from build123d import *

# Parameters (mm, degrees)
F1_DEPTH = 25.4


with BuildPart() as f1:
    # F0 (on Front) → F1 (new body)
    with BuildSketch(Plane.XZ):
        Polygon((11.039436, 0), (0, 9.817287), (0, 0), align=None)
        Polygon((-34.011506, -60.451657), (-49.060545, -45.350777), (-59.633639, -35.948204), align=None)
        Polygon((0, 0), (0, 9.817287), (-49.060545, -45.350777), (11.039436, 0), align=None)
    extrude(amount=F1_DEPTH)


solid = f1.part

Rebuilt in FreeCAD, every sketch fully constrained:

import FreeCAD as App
import Part
import Sketcher

V = App.Vector
Q = App.Units.Quantity

doc = App.newDocument("Part")
body = doc.addObject("PartDesign::Body", "Body")
body.AllowCompound = True

# Sketch on XZ plane
sketch1 = body.newObject("Sketcher::SketchObject", "Sketch")
sketch1.AttachmentSupport = (doc.getObject("XZ_Plane"), [""])
sketch1.MapMode = "FlatFace"
sketch1.addGeometry(Part.LineSegment(V(11, 0, 0), V(0, 10, 0)), False)
sketch1.addGeometry(Part.LineSegment(V(0, 10, 0), V(-49, -45, 0)), False)
sketch1.addGeometry(Part.LineSegment(V(-49, -45, 0), V(11, 0, 0)), False)
sketch1.addGeometry(Part.LineSegment(V(-34, -60, 0), V(-49, -45, 0)), False)
sketch1.addGeometry(Part.LineSegment(V(-49, -45, 0), V(-60, -36, 0)), False)
sketch1.addGeometry(Part.LineSegment(V(-60, -36, 0), V(-34, -60, 0)), False)
sketch1.addConstraint(Sketcher.Constraint("Coincident", 0, 2, 1, 1))
sketch1.addConstraint(Sketcher.Constraint("Coincident", 1, 2, 2, 1))
sketch1.addConstraint(Sketcher.Constraint("Coincident", 2, 2, 0, 1))
sketch1.addConstraint(Sketcher.Constraint("Coincident", 3, 2, 4, 1))
sketch1.addConstraint(Sketcher.Constraint("Coincident", 4, 2, 5, 1))
sketch1.addConstraint(Sketcher.Constraint("Coincident", 5, 2, 3, 1))
sketch1.addConstraint(Sketcher.Constraint("Coincident", 3, 2, 1, 2))
sketch1.addConstraint(Sketcher.Constraint("PointOnObject", 0, 2, -2))
sketch1.addConstraint(Sketcher.Constraint("PointOnObject", 2, 2, -1))
sketch1.addConstraint(Sketcher.Constraint("Perpendicular", 0, 1))
sketch1.addConstraint(Sketcher.Constraint("Perpendicular", 1, 4))
sketch1.addConstraint(Sketcher.Constraint("Distance", 0, Q("14.773228 mm")))
sketch1.addConstraint(Sketcher.Constraint("Distance", 1, Q("73.827179 mm")))
sketch1.addConstraint(Sketcher.Constraint("Distance", 4, Q("14.149159 mm")))
sketch1.addConstraint(Sketcher.Constraint("DistanceX", 4, 2, -1, 1, Q("59.633639 mm")))
sketch1.addConstraint(Sketcher.Constraint("DistanceX", 1, 2, 5, 2, Q("15.049039 mm")))
sketch1.addConstraint(Sketcher.Constraint("DistanceY", 5, 2, 1, 2, Q("15.10088 mm")))
pad1 = body.newObject("PartDesign::Pad", "Pad")
pad1.Profile = sketch1
pad1.Length = Q("1 in")

doc.recompute()
